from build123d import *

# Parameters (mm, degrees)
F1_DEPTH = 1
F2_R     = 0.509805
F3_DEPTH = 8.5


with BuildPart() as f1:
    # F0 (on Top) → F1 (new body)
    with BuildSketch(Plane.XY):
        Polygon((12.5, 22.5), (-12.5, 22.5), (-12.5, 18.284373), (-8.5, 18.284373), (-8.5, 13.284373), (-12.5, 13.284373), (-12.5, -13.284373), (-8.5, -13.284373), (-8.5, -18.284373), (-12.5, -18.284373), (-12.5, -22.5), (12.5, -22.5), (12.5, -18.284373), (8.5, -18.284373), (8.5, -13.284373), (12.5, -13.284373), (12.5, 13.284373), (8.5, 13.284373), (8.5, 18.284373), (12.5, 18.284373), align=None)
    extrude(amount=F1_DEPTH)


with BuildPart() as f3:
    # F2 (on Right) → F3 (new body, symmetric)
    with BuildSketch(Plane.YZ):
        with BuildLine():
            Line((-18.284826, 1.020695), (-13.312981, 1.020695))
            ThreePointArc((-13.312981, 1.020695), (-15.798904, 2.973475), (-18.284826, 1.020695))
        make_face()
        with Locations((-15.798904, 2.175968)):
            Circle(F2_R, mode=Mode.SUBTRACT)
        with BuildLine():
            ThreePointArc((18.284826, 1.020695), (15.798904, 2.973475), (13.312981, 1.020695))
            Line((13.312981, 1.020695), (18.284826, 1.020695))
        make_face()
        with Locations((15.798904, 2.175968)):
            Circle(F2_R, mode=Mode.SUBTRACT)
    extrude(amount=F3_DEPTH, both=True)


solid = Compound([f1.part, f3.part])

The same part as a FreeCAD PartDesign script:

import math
import FreeCAD as App
import Part
import Sketcher

V = App.Vector
Q = App.Units.Quantity

doc = App.newDocument("Part")
body = doc.addObject("PartDesign::Body", "Body")

sketch1 = body.newObject("Sketcher::SketchObject", "Sketch")
sketch1.AttachmentSupport = (doc.getObject("XY_Plane"), [""])
sketch1.MapMode = "FlatFace"
sketch1.addGeometry([
    Part.LineSegment(V(12.5, 22.5, 0), V(-12.5, 22.5, 0)),
    Part.LineSegment(V(-12.5, 22.5, 0), V(-12.5, 18.3, 0)),
    Part.LineSegment(V(-12.5, 18.3, 0), V(-8.5, 18.3, 0)),
    Part.LineSegment(V(-8.5, 18.3, 0), V(-8.5, 13.3, 0)),
    Part.LineSegment(V(-8.5, 13.3, 0), V(-12.5, 13.3, 0)),
    Part.LineSegment(V(-12.5, 13.3, 0), V(-12.5, -13.3, 0)),
    Part.LineSegment(V(-12.5, -13.3, 0), V(-8.5, -13.3, 0)),
    Part.LineSegment(V(-8.5, -13.3, 0), V(-8.5, -18.3, 0)),
    Part.LineSegment(V(-8.5, -18.3, 0), V(-12.5, -18.3, 0)),
    Part.LineSegment(V(-12.5, -18.3, 0), V(-12.5, -22.5, 0)),
    Part.LineSegment(V(-12.5, -22.5, 0), V(12.5, -22.5, 0)),
    Part.LineSegment(V(12.5, -22.5, 0), V(12.5, -18.3, 0)),
    Part.LineSegment(V(12.5, -18.3, 0), V(8.5, -18.3, 0)),
    Part.LineSegment(V(8.5, -18.3, 0), V(8.5, -13.3, 0)),
    Part.LineSegment(V(8.5, -13.3, 0), V(12.5, -13.3, 0)),
    Part.LineSegment(V(12.5, -13.3, 0), V(12.5, 13.3, 0)),
    Part.LineSegment(V(12.5, 13.3, 0), V(8.5, 13.3, 0)),
    Part.LineSegment(V(8.5, 13.3, 0), V(8.5, 18.3, 0)),
    Part.LineSegment(V(8.5, 18.3, 0), V(12.5, 18.3, 0)),
    Part.LineSegment(V(12.5, 18.3, 0), V(12.5, 22.5, 0)),
], False)
sketch1.addConstraint([
    Sketcher.Constraint("Coincident", 0, 2, 1, 1),
    Sketcher.Constraint("Coincident", 1, 2, 2, 1),
    Sketcher.Constraint("Coincident", 2, 2, 3, 1),
    Sketcher.Constraint("Coincident", 3, 2, 4, 1),
    Sketcher.Constraint("Coincident", 4, 2, 5, 1),
    Sketcher.Constraint("Coincident", 5, 2, 6, 1),
    Sketcher.Constraint("Coincident", 6, 2, 7, 1),
    Sketcher.Constraint("Coincident", 7, 2, 8, 1),
    Sketcher.Constraint("Coincident", 8, 2, 9, 1),
    Sketcher.Constraint("Coincident", 9, 2, 10, 1),
    Sketcher.Constraint("Coincident", 10, 2, 11, 1),
    Sketcher.Constraint("Coincident", 11, 2, 12, 1),
    Sketcher.Constraint("Coincident", 12, 2, 13, 1),
    Sketcher.Constraint("Coincident", 13, 2, 14, 1),
    Sketcher.Constraint("Coincident", 14, 2, 15, 1),
    Sketcher.Constraint("Coincident", 15, 2, 16, 1),
    Sketcher.Constraint("Coincident", 16, 2, 17, 1),
    Sketcher.Constraint("Coincident", 17, 2, 18, 1),
    Sketcher.Constraint("Coincident", 18, 2, 19, 1),
    Sketcher.Constraint("Coincident", 19, 2, 0, 1),
    Sketcher.Constraint("Horizontal", 0),
    Sketcher.Constraint("Vertical", 1),
    Sketcher.Constraint("Horizontal", 2),
    Sketcher.Constraint("Vertical", 3),
    Sketcher.Constraint("Horizontal", 4),
    Sketcher.Constraint("Vertical", 5),
    Sketcher.Constraint("Horizontal", 6),
    Sketcher.Constraint("Vertical", 7),
    Sketcher.Constraint("Horizontal", 8),
    Sketcher.Constraint("Vertical", 9),
    Sketcher.Constraint("Horizontal", 10),
    Sketcher.Constraint("Vertical", 11),
    Sketcher.Constraint("Horizontal", 12),
    Sketcher.Constraint("Vertical", 13),
    Sketcher.Constraint("Horizontal", 14),
    Sketcher.Constraint("Vertical", 15),
    Sketcher.Constraint("Horizontal", 16),
    Sketcher.Constraint("Vertical", 17),
    Sketcher.Constraint("Horizontal", 18),
    Sketcher.Constraint("Vertical", 19),
    Sketcher.Constraint("Symmetric", 0, 2, 10, 2, -1, 1),
    Sketcher.Constraint("Symmetric", 2, 2, 12, 2, -1, 1),
    Sketcher.Constraint("Symmetric", 4, 2, 14, 2, -1, 1),
    Sketcher.Constraint("Symmetric", 6, 2, 16, 2, -1, 1),
    Sketcher.Constraint("Symmetric", 8, 2, 18, 2, -1, 1),
    Sketcher.Constraint("Symmetric", 8, 2, 11, 2, -2),
    Sketcher.Constraint("Symmetric", 6, 2, 13, 2, -2),
    Sketcher.Constraint("Vertical", 1, 2, 4, 2),
    Sketcher.Constraint("DistanceX", 0, 2, 0, 1, Q("25 mm")),
    Sketcher.Constraint("DistanceX", 2, 1, 2, 2, Q("4 mm")),
    Sketcher.Constraint("DistanceY", 3, 2, 3, 1, Q("5 mm")),
    Sketcher.Constraint("DistanceY", -1, 1, 0, 2, Q("22.5 mm")),
    Sketcher.Constraint("DistanceY", 1, 2, 1, 1, Q("4.215627 mm")),
])
pad1 = body.newObject("PartDesign::Pad", "Pad")
pad1.Profile = sketch1
pad1.Length = 1
body2 = doc.addObject("PartDesign::Body", "Body001")
body2.AllowCompound = True

sketch2 = body2.newObject("Sketcher::SketchObject", "Sketch001")
sketch2.AttachmentSupport = (doc.getObject("YZ_Plane001"), [""])
sketch2.MapMode = "FlatFace"
sketch2.addGeometry([
    Part.LineSegment(V(-18.3, 1, 0), V(-13.3, 1, 0)),
    Part.ArcOfCircle(Part.Circle(V(-15.8, 0.4, 0), V(0, 0, 1), 2.6), math.radians(14), math.radians(166)),
    Part.Circle(V(-15.8, 2.2, 0), V(0, 0, 1), 0.5),
    Part.ArcOfCircle(Part.Circle(V(15.8, 0.4, 0), V(0, 0, 1), 2.6), math.radians(14), math.radians(166)),
    Part.LineSegment(V(13.3, 1, 0), V(18.3, 1, 0)),
    Part.Circle(V(15.8, 2.2, 0), V(0, 0, 1), 0.5),
], False)
sketch2.addConstraint([
    Sketcher.Constraint("Coincident", 0, 1, 1, 2),
    Sketcher.Constraint("Coincident", 1, 1, 0, 2),
    Sketcher.Constraint("Coincident", 3, 1, 4, 2),
    Sketcher.Constraint("Coincident", 4, 1, 3, 2),
    Sketcher.Constraint("Horizontal", 0),
    Sketcher.Constraint("Horizontal", 4),
    Sketcher.Constraint("Equal", 1, 3),
    Sketcher.Constraint("Equal", 2, 5),
    Sketcher.Constraint("Symmetric", 1, 3, 3, 3, -2),
    Sketcher.Constraint("Symmetric", 2, 3, 5, 3, -2),
    Sketcher.Constraint("Horizontal", 1, 1, 3, 1),
    Sketcher.Constraint("Vertical", 1, 3, 2, 3),
    Sketcher.Constraint("Radius", 1, Q("2.558701 mm")),
    Sketcher.Constraint("Diameter", 2, Q("1.01961 mm")),
    Sketcher.Constraint("DistanceX", 0, 1, 0, 2, Q("4.971845 mm")),
    Sketcher.Constraint("DistanceY", -1, 1, 2, 3, Q("2.175968 mm")),
    Sketcher.Constraint("DistanceX", 1, 1, -1, 1, Q("13.312981 mm")),
    Sketcher.Constraint("DistanceY", -1, 1, 1, 3, Q("0.414774 mm")),
])
pad2 = body2.newObject("PartDesign::Pad", "Pad001")
pad2.Profile = sketch2
pad2.Length = 17
pad2.Midplane = True

doc.recompute()
